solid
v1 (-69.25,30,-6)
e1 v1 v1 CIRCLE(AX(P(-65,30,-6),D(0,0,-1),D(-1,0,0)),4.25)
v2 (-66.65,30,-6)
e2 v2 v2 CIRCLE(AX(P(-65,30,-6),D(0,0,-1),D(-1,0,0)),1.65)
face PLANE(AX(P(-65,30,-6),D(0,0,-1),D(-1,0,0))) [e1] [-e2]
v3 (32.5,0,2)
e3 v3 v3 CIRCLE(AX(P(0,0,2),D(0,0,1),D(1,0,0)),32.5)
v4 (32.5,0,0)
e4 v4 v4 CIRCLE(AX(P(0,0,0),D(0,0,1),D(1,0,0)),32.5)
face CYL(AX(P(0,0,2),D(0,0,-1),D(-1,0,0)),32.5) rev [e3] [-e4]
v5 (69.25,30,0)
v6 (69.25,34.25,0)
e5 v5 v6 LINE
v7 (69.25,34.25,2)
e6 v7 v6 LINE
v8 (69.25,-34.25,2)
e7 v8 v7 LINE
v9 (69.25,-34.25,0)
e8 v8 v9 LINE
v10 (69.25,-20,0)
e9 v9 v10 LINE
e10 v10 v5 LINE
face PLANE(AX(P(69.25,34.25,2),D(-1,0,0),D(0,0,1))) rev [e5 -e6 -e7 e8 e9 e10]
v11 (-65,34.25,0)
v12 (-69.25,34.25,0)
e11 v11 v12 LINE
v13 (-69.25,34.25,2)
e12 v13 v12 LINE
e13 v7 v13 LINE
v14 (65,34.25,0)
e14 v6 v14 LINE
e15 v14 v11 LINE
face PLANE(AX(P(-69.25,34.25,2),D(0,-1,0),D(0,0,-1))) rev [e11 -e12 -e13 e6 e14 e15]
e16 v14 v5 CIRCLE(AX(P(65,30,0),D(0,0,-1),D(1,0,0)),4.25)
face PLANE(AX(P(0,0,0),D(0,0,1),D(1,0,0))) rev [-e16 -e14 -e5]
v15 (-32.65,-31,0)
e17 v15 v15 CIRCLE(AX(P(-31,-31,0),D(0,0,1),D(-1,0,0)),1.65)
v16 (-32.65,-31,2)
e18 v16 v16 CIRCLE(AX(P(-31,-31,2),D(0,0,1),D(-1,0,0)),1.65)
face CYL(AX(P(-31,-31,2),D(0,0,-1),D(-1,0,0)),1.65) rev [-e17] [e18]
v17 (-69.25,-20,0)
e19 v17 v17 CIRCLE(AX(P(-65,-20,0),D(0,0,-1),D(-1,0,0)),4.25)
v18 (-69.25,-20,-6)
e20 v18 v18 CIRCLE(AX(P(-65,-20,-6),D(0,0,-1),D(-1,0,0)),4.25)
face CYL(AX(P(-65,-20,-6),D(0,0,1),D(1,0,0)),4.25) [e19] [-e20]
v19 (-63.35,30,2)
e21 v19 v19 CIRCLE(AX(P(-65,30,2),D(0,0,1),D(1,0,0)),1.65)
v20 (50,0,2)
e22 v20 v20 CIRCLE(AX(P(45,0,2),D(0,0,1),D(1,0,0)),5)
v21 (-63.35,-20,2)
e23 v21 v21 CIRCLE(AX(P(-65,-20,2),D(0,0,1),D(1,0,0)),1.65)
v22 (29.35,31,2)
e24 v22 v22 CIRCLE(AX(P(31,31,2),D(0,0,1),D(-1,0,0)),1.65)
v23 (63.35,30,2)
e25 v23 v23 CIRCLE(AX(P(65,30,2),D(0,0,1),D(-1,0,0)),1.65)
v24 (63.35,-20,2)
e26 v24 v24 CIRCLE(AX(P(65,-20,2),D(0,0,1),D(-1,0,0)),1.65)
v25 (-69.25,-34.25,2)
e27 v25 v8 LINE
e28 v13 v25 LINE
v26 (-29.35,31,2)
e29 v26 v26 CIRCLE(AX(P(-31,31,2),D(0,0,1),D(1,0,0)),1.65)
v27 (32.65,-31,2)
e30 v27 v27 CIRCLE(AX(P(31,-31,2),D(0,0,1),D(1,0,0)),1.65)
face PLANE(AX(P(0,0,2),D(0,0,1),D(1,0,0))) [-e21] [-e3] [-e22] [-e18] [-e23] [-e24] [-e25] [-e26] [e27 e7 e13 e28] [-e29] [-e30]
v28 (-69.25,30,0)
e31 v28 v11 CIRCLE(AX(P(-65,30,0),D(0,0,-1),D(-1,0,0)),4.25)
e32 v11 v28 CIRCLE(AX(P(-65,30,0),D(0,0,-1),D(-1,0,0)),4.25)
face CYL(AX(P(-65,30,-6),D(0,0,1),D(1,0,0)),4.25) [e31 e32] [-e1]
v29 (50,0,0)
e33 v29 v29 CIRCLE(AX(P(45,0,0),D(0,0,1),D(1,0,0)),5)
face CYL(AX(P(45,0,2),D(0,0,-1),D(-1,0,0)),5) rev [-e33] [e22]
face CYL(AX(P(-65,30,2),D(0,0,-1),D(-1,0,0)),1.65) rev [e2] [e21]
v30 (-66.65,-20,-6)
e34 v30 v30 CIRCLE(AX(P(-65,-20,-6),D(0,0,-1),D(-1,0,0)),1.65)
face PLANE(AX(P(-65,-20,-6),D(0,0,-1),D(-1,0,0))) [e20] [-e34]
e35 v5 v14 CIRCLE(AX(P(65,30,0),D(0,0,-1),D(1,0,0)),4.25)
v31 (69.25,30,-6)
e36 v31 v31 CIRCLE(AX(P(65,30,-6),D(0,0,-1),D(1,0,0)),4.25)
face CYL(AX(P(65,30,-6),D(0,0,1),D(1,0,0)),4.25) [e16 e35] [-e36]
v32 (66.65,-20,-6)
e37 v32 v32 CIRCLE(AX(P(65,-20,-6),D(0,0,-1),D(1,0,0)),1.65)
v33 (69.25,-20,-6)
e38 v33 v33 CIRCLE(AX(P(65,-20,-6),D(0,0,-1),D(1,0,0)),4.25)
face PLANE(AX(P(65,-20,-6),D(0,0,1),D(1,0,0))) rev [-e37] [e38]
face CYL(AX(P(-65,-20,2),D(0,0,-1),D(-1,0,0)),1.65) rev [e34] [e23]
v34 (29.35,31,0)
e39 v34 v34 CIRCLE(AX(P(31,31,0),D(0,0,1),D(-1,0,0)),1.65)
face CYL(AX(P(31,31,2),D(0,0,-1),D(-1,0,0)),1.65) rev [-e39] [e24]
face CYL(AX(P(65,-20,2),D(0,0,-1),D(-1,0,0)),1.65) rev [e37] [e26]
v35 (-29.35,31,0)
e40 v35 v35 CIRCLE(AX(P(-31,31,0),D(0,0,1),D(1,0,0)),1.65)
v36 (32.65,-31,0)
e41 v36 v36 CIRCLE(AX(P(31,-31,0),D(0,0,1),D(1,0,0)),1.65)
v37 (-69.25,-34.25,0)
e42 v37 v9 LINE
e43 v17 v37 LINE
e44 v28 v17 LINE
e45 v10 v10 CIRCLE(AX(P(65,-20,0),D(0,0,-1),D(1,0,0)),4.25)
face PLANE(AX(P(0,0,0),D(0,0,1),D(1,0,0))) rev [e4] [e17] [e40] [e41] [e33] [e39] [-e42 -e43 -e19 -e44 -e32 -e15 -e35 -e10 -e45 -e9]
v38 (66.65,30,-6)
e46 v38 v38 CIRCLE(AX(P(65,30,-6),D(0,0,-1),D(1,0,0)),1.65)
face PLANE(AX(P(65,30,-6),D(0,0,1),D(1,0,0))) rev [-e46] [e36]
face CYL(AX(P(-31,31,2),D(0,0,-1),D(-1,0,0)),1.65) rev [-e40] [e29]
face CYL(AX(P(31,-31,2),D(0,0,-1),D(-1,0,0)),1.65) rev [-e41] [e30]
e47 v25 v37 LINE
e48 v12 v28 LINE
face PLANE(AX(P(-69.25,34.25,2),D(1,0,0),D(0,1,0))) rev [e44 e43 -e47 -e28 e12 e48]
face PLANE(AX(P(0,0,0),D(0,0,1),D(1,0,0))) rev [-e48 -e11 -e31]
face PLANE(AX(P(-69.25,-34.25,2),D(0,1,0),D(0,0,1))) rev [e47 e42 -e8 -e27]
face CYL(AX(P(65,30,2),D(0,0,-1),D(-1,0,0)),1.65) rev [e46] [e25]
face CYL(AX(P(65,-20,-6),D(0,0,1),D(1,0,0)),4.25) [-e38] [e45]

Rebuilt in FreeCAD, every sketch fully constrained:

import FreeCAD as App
import Part
import Sketcher

V = App.Vector
Q = App.Units.Quantity

doc = App.newDocument("Part")
params = doc.addObject("Spreadsheet::Sheet", "Params")
for row, (alias, value) in enumerate([
    ("sketch1_diameter", "65 mm"),
    ("sketch1_diameter2", "10 mm"),
    ("sketch1_diameter3", "3.3 mm"),
    ("sketch1_width", "138.5 mm"),
    ("sketch1_height", "68.5 mm"),
    ("pad1_length", "2 mm"),
    ("sketch2_diameter", "8.5 mm"),
    ("sketch2_diameter2", "3.3 mm"),
    ("pad2_length", "6 mm"),
], start=1):
    params.set(f"A{row}", alias)
    params.set(f"B{row}", "=" + value)
    params.setAlias(f"B{row}", alias)

body = doc.addObject("PartDesign::Body", "Body")

# Sketch on XY plane
sketch1 = doc.addObject("Sketcher::SketchObject", "Sketch")
body.addObject(sketch1)
sketch1.AttachmentSupport = (doc.XY_Plane, [""])
sketch1.MapMode = "FlatFace"
sketch1.addGeometry(Part.LineSegment(V(-69.25, 34.25, 0), V(-69.25, -34.25, 0)), False)
sketch1.addGeometry(Part.LineSegment(V(-69.25, -34.25, 0), V(69.25, -34.25, 0)), False)
sketch1.addGeometry(Part.LineSegment(V(69.25, -34.25, 0), V(69.25, 34.25, 0)), False)
sketch1.addGeometry(Part.LineSegment(V(69.25, 34.25, 0), V(-69.25, 34.25, 0)), False)
sketch1.addGeometry(Part.Circle(V(-65, -20, 0), V(0, 0, 1), 1.65), False)
sketch1.addGeometry(Part.Circle(V(-31, -31, 0), V(0, 0, 1), 1.65), False)
sketch1.addGeometry(Part.Circle(V(31, -31, 0), V(0, 0, 1), 1.65), False)
sketch1.addGeometry(Part.Circle(V(65, -20, 0), V(0, 0, 1), 1.65), False)
sketch1.addGeometry(Part.Circle(V(-65, 30, 0), V(0, 0, 1), 1.65), False)
sketch1.addGeometry(Part.Circle(V(-31, 31, 0), V(0, 0, 1), 1.65), False)
sketch1.addGeometry(Part.Circle(V(0, 0, 0), V(0, 0, 1), 32.5), False)
sketch1.addGeometry(Part.Circle(V(45, 0, 0), V(0, 0, 1), 5), False)
sketch1.addGeometry(Part.Circle(V(31, 31, 0), V(0, 0, 1), 1.65), False)
sketch1.addGeometry(Part.Circle(V(65, 30, 0), V(0, 0, 1), 1.65), False)
sketch1.addConstraint(Sketcher.Constraint("Coincident", 0, 2, 1, 1))
sketch1.addConstraint(Sketcher.Constraint("Coincident", 1, 2, 2, 1))
sketch1.addConstraint(Sketcher.Constraint("Coincident", 2, 2, 3, 1))
sketch1.addConstraint(Sketcher.Constraint("Coincident", 3, 2, 0, 1))
sketch1.addConstraint(Sketcher.Constraint("Vertical", 0))
sketch1.addConstraint(Sketcher.Constraint("Horizontal", 1))
sketch1.addConstraint(Sketcher.Constraint("Vertical", 2))
sketch1.addConstraint(Sketcher.Constraint("Horizontal", 3))
sketch1.addConstraint(Sketcher.Constraint("Coincident", 10, 3, -1, 1))
sketch1.addConstraint(Sketcher.Constraint("Equal", 4, 5))
sketch1.addConstraint(Sketcher.Constraint("Equal", 5, 6))
sketch1.addConstraint(Sketcher.Constraint("Equal", 6, 7))
sketch1.addConstraint(Sketcher.Constraint("Equal", 7, 8))
sketch1.addConstraint(Sketcher.Constraint("Equal", 8, 9))
sketch1.addConstraint(Sketcher.Constraint("Equal", 9, 12))
sketch1.addConstraint(Sketcher.Constraint("Equal", 12, 13))
sketch1.addConstraint(Sketcher.Constraint("Symmetric", 6, 3, 9, 3, -1, 1))
sketch1.addConstraint(Sketcher.Constraint("Symmetric", 5, 3, 12, 3, -1, 1))
sketch1.addConstraint(Sketcher.Constraint("Symmetric", 0, 2, 2, 2, -1, 1))
sketch1.addConstraint(Sketcher.Constraint("Symmetric", 5, 3, 6, 3, -2))
sketch1.addConstraint(Sketcher.Constraint("Symmetric", 4, 3, 7, 3, -2))
sketch1.addConstraint(Sketcher.Constraint("Symmetric", 8, 3, 13, 3, -2))
sketch1.addConstraint(Sketcher.Constraint("PointOnObject", 11, 3, -1))
sketch1.addConstraint(Sketcher.Constraint("Vertical", 4, 3, 8, 3))
sketch1.addConstraint(Sketcher.Constraint("Diameter", 10, Q("65 mm")))
sketch1.addConstraint(Sketcher.Constraint("Diameter", 11, Q("10 mm")))
sketch1.addConstraint(Sketcher.Constraint("Diameter", 4, Q("3.3 mm")))
sketch1.addConstraint(Sketcher.Constraint("DistanceX", 1, 1, 1, 2, Q("138.5 mm")))
sketch1.addConstraint(Sketcher.Constraint("DistanceY", 0, 2, 0, 1, Q("68.5 mm")))
sketch1.addConstraint(Sketcher.Constraint("DistanceX", 4, 3, -1, 1, Q("65 mm")))
sketch1.addConstraint(Sketcher.Constraint("DistanceY", 4, 3, -1, 1, Q("20 mm")))
sketch1.addConstraint(Sketcher.Constraint("DistanceX", 5, 3, -1, 1, Q("31 mm")))
sketch1.addConstraint(Sketcher.Constraint("DistanceY", 5, 3, -1, 1, Q("31 mm")))
sketch1.addConstraint(Sketcher.Constraint("DistanceY", -1, 1, 8, 3, Q("30 mm")))
sketch1.addConstraint(Sketcher.Constraint("DistanceX", -1, 1, 11, 3, Q("45 mm")))
sketch1.setExpression("Constraints[24]", "Params.sketch1_diameter")
sketch1.setExpression("Constraints[25]", "Params.sketch1_diameter2")
sketch1.setExpression("Constraints[26]", "Params.sketch1_diameter3")
sketch1.setExpression("Constraints[27]", "Params.sketch1_width")
sketch1.setExpression("Constraints[28]", "Params.sketch1_height")
pad1 = doc.addObject("PartDesign::Pad", "Pad")
body.addObject(pad1)
pad1.Profile = sketch1
pad1.setExpression("Length", "Params.pad1_length")

# Sketch on XY plane
sketch2 = doc.addObject("Sketcher::SketchObject", "Sketch001")
body.addObject(sketch2)
sketch2.AttachmentSupport = (doc.XY_Plane, [""])
sketch2.MapMode = "FlatFace"
sketch2.addGeometry(Part.Circle(V(-65, 30, 0), V(0, 0, 1), 4.25), False)
sketch2.addGeometry(Part.Circle(V(-65, 30, 0), V(0, 0, 1), 1.65), False)
sketch2.addGeometry(Part.Circle(V(-65, -20, 0), V(0, 0, 1), 4.25), False)
sketch2.addGeometry(Part.Circle(V(-65, -20, 0), V(0, 0, 1), 1.65), False)
sketch2.addGeometry(Part.Circle(V(65, -20, 0), V(0, 0, 1), 4.25), False)
sketch2.addGeometry(Part.Circle(V(65, -20, 0), V(0, 0, 1), 1.65), False)
sketch2.addGeometry(Part.Circle(V(65, 30, 0), V(0, 0, 1), 4.25), False)
sketch2.addGeometry(Part.Circle(V(65, 30, 0), V(0, 0, 1), 1.65), False)
sketch2.addConstraint(Sketcher.Constraint("Coincident", 1, 3, 0, 3))
sketch2.addConstraint(Sketcher.Constraint("Coincident", 3, 3, 2, 3))
sketch2.addConstraint(Sketcher.Constraint("Coincident", 5, 3, 4, 3))
sketch2.addConstraint(Sketcher.Constraint("Coincident", 7, 3, 6, 3))
sketch2.addConstraint(Sketcher.Constraint("Equal", 0, 2))
sketch2.addConstraint(Sketcher.Constraint("Equal", 1, 3))
sketch2.addConstraint(Sketcher.Constraint("Equal", 2, 4))
sketch2.addConstraint(Sketcher.Constraint("Equal", 3, 5))
sketch2.addConstraint(Sketcher.Constraint("Equal", 4, 6))
sketch2.addConstraint(Sketcher.Constraint("Equal", 5, 7))
sketch2.addConstraint(Sketcher.Constraint("Symmetric", 2, 3, 4, 3, -2))
sketch2.addConstraint(Sketcher.Constraint("Symmetric", 0, 3, 6, 3, -2))
sketch2.addConstraint(Sketcher.Constraint("Vertical", 1, 3, 2, 3))
sketch2.addConstraint(Sketcher.Constraint("Diameter", 0, Q("8.5 mm")))
sketch2.addConstraint(Sketcher.Constraint("Diameter", 1, Q("3.3 mm")))
sketch2.addConstraint(Sketcher.Constraint("DistanceX", 0, 3, -1, 1, Q("65 mm")))
sketch2.addConstraint(Sketcher.Constraint("DistanceY", -1, 1, 0, 3, Q("30 mm")))
sketch2.addConstraint(Sketcher.Constraint("DistanceY", 2, 3, -1, 1, Q("20 mm")))
sketch2.setExpression("Constraints[13]", "Params.sketch2_diameter")
sketch2.setExpression("Constraints[14]", "Params.sketch2_diameter2")
pad2 = doc.addObject("PartDesign::Pad", "Pad001")
body.addObject(pad2)
pad2.Profile = sketch2
pad2.setExpression("Length", "Params.pad2_length")
pad2.Reversed = True

doc.recompute()
